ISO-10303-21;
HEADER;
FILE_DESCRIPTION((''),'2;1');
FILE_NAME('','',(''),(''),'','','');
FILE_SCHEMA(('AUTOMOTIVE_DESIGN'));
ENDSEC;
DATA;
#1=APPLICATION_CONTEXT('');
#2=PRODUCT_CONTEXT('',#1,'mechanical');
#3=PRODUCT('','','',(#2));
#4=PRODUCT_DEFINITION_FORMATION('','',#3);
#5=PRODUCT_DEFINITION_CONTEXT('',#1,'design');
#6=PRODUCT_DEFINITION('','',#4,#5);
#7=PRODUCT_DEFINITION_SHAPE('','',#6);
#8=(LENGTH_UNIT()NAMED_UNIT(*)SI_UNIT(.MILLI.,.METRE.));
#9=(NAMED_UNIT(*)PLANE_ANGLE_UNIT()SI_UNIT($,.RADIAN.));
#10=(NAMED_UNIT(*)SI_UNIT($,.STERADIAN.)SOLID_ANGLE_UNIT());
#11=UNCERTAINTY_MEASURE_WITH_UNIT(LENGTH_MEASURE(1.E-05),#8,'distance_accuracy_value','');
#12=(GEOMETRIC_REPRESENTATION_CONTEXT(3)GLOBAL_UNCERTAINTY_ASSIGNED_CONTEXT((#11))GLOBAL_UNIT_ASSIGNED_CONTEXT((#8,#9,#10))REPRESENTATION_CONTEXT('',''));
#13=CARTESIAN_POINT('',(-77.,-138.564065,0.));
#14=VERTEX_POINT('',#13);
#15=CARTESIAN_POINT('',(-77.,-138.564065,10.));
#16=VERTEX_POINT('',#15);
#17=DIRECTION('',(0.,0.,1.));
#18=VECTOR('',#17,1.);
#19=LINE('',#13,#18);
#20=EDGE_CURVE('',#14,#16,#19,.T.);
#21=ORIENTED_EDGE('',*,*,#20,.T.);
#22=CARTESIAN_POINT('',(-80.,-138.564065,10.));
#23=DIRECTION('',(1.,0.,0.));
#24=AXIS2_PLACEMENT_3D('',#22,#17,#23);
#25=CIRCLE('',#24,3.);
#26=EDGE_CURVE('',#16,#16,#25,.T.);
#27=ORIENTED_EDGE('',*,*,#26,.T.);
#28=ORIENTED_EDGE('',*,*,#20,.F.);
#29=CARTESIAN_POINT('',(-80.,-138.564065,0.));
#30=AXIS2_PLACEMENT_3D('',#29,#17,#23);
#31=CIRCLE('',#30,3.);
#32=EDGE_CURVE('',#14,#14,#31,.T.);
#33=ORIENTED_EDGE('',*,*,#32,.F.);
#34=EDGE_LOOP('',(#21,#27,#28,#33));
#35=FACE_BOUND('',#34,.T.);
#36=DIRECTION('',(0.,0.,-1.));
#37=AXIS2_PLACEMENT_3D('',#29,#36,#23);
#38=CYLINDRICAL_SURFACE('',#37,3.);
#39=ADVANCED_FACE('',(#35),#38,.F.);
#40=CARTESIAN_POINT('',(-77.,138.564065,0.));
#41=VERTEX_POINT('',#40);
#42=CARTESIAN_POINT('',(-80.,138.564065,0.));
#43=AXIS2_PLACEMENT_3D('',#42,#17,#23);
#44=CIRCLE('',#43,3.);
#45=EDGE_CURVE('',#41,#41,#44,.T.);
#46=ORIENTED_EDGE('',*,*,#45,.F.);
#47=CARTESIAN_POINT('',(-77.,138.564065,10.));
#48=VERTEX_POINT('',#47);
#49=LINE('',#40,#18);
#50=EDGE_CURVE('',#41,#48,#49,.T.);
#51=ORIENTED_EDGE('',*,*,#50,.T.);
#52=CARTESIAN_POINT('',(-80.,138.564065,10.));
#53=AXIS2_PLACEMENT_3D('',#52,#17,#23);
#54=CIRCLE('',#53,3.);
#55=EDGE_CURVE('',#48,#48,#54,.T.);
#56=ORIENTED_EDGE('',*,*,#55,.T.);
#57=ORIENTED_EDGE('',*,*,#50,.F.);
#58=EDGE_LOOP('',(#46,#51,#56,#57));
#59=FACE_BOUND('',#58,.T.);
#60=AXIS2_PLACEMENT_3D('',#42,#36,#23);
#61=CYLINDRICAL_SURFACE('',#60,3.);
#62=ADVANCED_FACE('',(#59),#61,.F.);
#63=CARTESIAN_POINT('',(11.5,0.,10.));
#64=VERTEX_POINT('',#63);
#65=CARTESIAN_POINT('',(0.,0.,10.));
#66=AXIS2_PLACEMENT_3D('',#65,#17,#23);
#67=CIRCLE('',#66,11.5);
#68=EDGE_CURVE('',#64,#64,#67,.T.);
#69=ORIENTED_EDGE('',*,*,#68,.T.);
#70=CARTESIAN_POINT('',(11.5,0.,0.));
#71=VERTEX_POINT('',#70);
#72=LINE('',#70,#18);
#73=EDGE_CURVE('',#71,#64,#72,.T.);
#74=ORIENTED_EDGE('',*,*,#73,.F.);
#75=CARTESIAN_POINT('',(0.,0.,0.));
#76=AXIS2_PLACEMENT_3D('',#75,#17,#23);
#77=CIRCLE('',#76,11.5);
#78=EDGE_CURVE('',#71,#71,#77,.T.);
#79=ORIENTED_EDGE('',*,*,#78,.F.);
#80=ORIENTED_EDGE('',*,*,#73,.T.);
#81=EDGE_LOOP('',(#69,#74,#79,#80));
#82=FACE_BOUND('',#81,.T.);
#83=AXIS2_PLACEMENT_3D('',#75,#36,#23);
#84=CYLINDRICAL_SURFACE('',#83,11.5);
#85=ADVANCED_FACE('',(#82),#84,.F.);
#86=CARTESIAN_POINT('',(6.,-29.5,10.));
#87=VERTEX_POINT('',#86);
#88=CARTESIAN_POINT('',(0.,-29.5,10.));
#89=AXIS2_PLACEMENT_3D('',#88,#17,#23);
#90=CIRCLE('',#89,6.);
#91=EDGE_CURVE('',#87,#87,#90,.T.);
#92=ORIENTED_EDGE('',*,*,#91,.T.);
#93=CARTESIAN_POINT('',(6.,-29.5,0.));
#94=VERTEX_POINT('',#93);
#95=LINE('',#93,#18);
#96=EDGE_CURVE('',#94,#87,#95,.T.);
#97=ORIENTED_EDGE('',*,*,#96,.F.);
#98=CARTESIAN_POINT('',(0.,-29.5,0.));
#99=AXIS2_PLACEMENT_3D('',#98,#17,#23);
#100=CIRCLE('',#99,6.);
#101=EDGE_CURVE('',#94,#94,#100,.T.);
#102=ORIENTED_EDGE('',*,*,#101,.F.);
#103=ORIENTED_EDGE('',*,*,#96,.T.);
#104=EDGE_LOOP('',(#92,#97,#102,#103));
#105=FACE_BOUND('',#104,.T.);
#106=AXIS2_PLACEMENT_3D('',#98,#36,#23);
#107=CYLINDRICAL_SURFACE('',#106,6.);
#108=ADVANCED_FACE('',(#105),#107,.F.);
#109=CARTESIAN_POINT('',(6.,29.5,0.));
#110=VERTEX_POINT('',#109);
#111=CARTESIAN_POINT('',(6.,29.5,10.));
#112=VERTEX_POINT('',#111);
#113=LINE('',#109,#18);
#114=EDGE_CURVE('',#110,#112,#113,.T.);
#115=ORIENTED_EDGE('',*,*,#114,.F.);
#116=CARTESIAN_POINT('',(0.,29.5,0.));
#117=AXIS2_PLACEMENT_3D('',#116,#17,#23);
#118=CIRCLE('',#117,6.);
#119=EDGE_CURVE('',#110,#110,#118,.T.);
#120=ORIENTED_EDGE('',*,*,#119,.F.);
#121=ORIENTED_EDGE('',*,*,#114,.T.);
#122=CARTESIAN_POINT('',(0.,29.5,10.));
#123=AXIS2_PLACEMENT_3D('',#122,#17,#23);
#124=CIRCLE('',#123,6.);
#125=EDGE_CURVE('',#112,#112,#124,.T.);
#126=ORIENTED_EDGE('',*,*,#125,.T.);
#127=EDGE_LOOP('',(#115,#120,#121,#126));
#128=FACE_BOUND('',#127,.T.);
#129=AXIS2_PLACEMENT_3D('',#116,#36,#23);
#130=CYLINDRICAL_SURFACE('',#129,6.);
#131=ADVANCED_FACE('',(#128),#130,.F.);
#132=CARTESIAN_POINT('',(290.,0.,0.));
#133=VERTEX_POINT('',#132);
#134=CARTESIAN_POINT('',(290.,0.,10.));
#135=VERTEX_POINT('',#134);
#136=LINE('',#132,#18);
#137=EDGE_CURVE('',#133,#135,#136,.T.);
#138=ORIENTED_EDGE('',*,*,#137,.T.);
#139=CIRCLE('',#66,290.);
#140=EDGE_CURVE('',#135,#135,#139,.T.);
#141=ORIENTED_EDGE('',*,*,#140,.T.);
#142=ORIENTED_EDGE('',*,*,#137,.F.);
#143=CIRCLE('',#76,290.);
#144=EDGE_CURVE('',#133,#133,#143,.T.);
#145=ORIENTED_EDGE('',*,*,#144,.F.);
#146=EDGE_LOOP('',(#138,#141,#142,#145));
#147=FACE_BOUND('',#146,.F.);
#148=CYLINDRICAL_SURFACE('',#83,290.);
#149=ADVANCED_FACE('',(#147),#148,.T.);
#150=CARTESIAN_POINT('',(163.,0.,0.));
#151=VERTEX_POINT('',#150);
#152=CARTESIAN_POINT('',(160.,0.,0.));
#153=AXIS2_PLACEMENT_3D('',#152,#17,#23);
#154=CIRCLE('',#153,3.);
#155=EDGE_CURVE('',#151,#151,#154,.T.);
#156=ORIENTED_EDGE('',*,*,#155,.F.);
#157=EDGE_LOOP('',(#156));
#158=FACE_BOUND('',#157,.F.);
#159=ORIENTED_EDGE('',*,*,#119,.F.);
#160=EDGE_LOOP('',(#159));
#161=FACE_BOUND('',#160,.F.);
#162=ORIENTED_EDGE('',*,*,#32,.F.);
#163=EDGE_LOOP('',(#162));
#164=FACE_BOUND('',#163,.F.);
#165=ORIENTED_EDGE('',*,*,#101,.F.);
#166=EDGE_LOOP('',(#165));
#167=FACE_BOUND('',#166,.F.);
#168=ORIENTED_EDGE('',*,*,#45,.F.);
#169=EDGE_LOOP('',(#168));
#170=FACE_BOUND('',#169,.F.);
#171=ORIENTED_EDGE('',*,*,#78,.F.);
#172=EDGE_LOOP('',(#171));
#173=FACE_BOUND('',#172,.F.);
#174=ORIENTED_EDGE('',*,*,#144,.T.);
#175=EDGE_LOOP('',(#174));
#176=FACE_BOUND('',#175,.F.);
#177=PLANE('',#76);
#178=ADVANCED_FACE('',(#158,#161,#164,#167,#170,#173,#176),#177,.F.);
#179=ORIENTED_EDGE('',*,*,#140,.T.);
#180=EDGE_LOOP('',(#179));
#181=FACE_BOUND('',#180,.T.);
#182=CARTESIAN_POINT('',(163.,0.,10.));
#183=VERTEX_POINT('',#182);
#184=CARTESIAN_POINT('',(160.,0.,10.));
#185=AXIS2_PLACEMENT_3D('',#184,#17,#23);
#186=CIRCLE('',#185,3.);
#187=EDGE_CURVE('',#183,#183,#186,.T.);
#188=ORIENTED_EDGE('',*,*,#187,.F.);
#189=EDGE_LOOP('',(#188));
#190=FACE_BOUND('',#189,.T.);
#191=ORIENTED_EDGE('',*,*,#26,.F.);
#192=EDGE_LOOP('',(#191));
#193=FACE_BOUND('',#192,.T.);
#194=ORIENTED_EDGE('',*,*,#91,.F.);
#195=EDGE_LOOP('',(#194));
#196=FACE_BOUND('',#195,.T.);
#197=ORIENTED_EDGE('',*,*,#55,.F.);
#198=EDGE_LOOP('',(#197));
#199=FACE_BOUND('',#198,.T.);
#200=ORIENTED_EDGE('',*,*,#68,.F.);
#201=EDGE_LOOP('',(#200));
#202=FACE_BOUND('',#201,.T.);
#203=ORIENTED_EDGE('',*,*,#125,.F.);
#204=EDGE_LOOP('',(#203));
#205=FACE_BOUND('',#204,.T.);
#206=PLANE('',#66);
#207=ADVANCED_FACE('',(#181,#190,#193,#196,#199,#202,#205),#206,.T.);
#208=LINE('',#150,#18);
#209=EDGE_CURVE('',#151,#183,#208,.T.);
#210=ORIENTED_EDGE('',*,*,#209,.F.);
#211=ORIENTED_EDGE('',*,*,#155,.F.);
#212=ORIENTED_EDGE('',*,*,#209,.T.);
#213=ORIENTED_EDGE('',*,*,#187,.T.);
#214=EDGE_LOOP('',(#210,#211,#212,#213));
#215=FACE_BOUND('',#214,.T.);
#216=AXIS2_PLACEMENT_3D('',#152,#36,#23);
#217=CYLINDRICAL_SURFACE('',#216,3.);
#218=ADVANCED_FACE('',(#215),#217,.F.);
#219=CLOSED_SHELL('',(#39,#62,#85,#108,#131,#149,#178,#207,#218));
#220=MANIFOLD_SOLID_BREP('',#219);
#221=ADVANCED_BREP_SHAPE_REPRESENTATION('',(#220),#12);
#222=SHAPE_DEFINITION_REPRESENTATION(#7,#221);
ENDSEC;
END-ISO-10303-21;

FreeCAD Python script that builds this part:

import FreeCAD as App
import Part
import Sketcher
from FreeCAD import Vector
Q = App.Units.Quantity

doc = App.newDocument("Part")
params = doc.addObject("Spreadsheet::Sheet", "Params")
for row, (alias, value) in enumerate([
    ("sketch1_diameter", "580 mm"),
    ("sketch1_diameter2", "6 mm"),
    ("sketch1_diameter3", "12 mm"),
    ("sketch1_diameter4", "23 mm"),
    ("pad1_length", "10 mm"),
], start=1):
    params.set(f"A{row}", alias)
    params.set(f"B{row}", "=" + value)
    params.setAlias(f"B{row}", alias)

body = doc.addObject("PartDesign::Body", "Body")

# Sketch on XY plane
sketch1 = doc.addObject("Sketcher::SketchObject", "Sketch")
body.addObject(sketch1)
sketch1.AttachmentSupport = (doc.XY_Plane, [""])
sketch1.MapMode = "FlatFace"
sketch1.addGeometry(Part.Circle(Vector(0, 0, 0), Vector(0, 0, 1), 290), False)
sketch1.addGeometry(Part.Circle(Vector(-80, -138.6, 0), Vector(0, 0, 1), 3), False)
sketch1.addGeometry(Part.Circle(Vector(0, -29.5, 0), Vector(0, 0, 1), 6), False)
sketch1.addGeometry(Part.Circle(Vector(0, 0, 0), Vector(0, 0, 1), 11.5), False)
sketch1.addGeometry(Part.Circle(Vector(0, 29.5, 0), Vector(0, 0, 1), 6), False)
sketch1.addGeometry(Part.Circle(Vector(-80, 138.6, 0), Vector(0, 0, 1), 3), False)
sketch1.addGeometry(Part.Circle(Vector(160, 0, 0), Vector(0, 0, 1), 3), False)
sketch1.addConstraint(Sketcher.Constraint("Coincident", 0, 3, -1, 1))
sketch1.addConstraint(Sketcher.Constraint("Coincident", 3, 3, -1, 1))
sketch1.addConstraint(Sketcher.Constraint("Equal", 2, 4))
sketch1.addConstraint(Sketcher.Constraint("Equal", 1, 5))
sketch1.addConstraint(Sketcher.Constraint("Equal", 5, 6))
sketch1.addConstraint(Sketcher.Constraint("Symmetric", 2, 3, 4, 3, -1, 1))
sketch1.addConstraint(Sketcher.Constraint("Symmetric", 1, 3, 5, 3, -1))
sketch1.addConstraint(Sketcher.Constraint("PointOnObject", 2, 3, -2))
sketch1.addConstraint(Sketcher.Constraint("PointOnObject", 6, 3, -1))
sketch1.addConstraint(Sketcher.Constraint("Diameter", 0, Q("580 mm")))
sketch1.addConstraint(Sketcher.Constraint("Diameter", 1, Q("6 mm")))
sketch1.addConstraint(Sketcher.Constraint("Diameter", 2, Q("12 mm")))
sketch1.addConstraint(Sketcher.Constraint("Diameter", 3, Q("23 mm")))
sketch1.addConstraint(Sketcher.Constraint("DistanceX", 1, 3, -1, 1, Q("80 mm")))
sketch1.addConstraint(Sketcher.Constraint("DistanceX", -1, 1, 6, 3, Q("160 mm")))
sketch1.addConstraint(Sketcher.Constraint("DistanceY", 2, 3, 4, 3, Q("59 mm")))
sketch1.addConstraint(Sketcher.Constraint("DistanceY", 1, 3, 5, 3, Q("277.12813 mm")))
sketch1.setExpression("Constraints[9]", "Params.sketch1_diameter")
sketch1.setExpression("Constraints[10]", "Params.sketch1_diameter2")
sketch1.setExpression("Constraints[11]", "Params.sketch1_diameter3")
sketch1.setExpression("Constraints[12]", "Params.sketch1_diameter4")
pad1 = doc.addObject("PartDesign::Pad", "Pad")
body.addObject(pad1)
pad1.Profile = sketch1
pad1.setExpression("Length", "Params.pad1_length")

doc.recompute()
